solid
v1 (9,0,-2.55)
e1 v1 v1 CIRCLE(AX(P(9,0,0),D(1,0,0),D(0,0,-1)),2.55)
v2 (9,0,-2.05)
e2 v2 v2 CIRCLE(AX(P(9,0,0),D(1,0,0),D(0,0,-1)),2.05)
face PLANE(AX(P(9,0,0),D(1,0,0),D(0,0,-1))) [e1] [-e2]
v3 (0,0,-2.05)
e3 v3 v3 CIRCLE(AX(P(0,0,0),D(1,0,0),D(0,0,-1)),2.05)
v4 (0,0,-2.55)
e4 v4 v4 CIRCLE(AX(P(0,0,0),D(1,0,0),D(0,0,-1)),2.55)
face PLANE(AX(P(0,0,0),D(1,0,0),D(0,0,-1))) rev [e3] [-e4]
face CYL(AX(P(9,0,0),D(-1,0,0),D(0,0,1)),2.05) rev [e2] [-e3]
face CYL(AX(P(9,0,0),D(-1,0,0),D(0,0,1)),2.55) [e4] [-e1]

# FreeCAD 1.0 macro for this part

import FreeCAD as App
import Part
import Sketcher
from FreeCAD import Vector
Q = App.Units.Quantity

doc = App.newDocument("Part")
body = doc.addObject("PartDesign::Body", "Body")

# Sketch on YZ plane
sketch1 = doc.addObject("Sketcher::SketchObject", "Sketch")
body.addObject(sketch1)
sketch1.AttachmentSupport = (doc.YZ_Plane, [""])
sketch1.MapMode = "FlatFace"
sketch1.addGeometry(Part.Circle(Vector(0, 0, 0), Vector(0, 0, 1), 2.55), False)
sketch1.addGeometry(Part.Circle(Vector(0, 0, 0), Vector(0, 0, 1), 2.05), False)
sketch1.addConstraint(Sketcher.Constraint("Coincident", 0, 3, -1, 1))
sketch1.addConstraint(Sketcher.Constraint("Coincident", 1, 3, -1, 1))
sketch1.addConstraint(Sketcher.Constraint("Diameter", 0, Q("5.1 mm")))
sketch1.addConstraint(Sketcher.Constraint("Diameter", 1, Q("4.1 mm")))
pad1 = doc.addObject("PartDesign::Pad", "Pad")
body.addObject(pad1)
pad1.Profile = sketch1
pad1.Length = 9

doc.recompute()
